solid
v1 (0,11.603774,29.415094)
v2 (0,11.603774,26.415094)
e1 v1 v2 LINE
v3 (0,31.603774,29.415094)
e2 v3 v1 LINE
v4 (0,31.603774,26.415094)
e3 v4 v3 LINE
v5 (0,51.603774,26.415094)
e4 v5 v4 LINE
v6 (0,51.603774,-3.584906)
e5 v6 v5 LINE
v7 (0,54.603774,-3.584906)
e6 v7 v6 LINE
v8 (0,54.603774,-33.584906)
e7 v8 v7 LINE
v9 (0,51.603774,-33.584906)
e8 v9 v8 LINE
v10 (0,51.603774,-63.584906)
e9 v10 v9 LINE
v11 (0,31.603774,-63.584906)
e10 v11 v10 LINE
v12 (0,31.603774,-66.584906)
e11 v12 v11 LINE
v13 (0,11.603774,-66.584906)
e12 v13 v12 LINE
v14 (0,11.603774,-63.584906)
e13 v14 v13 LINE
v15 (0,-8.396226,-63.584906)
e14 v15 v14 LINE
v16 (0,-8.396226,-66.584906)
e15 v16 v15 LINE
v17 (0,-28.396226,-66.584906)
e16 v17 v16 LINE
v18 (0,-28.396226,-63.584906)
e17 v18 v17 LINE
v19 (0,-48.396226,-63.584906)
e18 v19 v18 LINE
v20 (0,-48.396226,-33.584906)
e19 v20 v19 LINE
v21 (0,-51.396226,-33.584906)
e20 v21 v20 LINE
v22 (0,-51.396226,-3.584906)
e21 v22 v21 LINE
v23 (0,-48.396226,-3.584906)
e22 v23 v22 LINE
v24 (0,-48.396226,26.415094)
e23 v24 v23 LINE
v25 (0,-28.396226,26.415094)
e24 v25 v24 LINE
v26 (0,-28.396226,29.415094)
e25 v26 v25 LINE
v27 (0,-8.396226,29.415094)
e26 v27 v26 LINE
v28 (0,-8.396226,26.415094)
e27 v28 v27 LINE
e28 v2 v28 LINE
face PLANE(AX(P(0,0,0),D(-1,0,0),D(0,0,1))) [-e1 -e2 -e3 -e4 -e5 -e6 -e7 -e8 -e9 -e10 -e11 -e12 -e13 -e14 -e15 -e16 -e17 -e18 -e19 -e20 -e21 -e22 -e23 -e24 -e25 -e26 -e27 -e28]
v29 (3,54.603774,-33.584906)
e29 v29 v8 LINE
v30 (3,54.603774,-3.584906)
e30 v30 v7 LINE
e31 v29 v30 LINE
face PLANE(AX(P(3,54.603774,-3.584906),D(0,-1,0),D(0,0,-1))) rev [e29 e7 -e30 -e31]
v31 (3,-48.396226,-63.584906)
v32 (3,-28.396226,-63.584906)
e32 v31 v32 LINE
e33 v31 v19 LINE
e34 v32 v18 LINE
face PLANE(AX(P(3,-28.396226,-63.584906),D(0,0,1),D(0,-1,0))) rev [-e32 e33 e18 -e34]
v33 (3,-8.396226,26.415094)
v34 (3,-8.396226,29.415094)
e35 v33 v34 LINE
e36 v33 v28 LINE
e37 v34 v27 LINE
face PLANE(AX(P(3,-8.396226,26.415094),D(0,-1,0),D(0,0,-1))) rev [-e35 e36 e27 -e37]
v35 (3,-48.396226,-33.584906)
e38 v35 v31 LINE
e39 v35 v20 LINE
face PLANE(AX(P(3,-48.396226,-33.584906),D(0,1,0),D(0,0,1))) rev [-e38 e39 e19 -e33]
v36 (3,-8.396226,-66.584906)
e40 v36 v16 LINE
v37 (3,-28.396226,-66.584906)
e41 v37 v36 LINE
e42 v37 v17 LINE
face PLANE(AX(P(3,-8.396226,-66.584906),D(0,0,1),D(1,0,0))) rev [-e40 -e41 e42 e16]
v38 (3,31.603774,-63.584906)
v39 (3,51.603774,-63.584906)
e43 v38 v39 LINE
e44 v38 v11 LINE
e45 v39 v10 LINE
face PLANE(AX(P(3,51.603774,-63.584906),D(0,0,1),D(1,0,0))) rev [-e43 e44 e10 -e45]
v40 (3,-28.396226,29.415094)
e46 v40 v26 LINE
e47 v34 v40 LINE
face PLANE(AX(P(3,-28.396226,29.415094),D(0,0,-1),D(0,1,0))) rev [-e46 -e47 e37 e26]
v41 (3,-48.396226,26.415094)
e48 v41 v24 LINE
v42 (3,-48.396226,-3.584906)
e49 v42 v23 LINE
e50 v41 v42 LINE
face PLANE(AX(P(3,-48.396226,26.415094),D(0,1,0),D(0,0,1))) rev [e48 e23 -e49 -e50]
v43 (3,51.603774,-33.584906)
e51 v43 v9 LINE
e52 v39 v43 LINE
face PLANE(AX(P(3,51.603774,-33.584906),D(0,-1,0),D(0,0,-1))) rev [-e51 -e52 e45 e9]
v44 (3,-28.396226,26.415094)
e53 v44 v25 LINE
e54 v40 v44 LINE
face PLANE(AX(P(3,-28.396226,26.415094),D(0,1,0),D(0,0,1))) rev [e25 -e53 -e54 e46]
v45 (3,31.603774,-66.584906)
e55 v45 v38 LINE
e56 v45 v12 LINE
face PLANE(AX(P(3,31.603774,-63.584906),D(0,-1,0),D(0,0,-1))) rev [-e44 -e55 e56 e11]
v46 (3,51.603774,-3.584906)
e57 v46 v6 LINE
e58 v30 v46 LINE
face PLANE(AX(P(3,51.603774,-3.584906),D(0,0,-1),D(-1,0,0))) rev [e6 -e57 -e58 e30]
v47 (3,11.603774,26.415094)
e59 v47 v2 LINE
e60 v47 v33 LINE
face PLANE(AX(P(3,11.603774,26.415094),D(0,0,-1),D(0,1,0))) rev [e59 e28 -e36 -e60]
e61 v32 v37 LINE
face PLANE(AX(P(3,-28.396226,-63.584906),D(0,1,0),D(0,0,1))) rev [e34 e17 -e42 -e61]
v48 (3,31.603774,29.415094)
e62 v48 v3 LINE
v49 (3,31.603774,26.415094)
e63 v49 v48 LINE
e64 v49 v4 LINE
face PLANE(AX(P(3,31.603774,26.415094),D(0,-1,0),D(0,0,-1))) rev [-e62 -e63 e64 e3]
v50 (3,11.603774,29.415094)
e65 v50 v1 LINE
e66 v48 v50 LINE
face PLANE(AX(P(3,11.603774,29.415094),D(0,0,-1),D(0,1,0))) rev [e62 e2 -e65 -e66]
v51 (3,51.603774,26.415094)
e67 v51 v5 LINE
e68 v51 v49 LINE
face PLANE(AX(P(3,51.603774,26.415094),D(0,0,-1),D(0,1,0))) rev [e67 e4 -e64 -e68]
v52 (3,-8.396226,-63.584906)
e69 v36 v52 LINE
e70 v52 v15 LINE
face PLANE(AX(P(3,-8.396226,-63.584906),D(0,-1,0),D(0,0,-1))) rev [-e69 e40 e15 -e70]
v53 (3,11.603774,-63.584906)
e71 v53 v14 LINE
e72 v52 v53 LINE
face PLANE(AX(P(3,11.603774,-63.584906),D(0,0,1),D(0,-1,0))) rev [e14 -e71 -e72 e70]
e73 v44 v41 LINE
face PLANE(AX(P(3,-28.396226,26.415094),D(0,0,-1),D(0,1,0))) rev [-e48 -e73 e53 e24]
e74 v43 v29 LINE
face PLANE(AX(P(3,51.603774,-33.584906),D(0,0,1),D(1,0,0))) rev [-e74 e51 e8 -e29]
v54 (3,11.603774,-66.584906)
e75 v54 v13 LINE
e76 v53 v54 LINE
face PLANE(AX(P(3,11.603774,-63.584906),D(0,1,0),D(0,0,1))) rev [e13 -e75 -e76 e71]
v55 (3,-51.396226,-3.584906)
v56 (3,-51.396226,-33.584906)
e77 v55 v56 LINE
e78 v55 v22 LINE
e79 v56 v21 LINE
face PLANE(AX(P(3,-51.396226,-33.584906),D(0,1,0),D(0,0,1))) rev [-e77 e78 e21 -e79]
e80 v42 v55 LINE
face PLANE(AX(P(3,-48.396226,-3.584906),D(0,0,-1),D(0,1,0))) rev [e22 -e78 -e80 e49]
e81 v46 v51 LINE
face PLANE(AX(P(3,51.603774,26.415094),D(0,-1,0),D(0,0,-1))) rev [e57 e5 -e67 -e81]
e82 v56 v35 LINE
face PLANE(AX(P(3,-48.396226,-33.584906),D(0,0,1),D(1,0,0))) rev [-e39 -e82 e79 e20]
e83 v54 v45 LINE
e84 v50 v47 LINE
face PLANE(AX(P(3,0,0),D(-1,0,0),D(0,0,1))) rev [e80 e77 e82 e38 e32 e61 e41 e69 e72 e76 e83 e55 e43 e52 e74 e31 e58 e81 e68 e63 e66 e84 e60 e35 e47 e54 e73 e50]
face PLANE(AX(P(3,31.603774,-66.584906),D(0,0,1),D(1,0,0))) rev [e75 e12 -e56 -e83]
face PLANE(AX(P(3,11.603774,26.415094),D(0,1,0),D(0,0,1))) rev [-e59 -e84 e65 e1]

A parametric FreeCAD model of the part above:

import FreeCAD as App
import Part
import Sketcher


def add_polygon(sketch, points):
    """Adds a closed chain of lines whose ends are joined by coincident constraints."""
    first, n = sketch.GeometryCount, len(points)
    for a, b in zip(points, points[1:] + points[:1]):
        sketch.addGeometry(Part.LineSegment(App.Vector(*a, 0), App.Vector(*b, 0)), False)
    for i in range(n):
        sketch.addConstraint(Sketcher.Constraint("Coincident", first + i, 2, first + (i + 1) % n, 1))

doc = App.newDocument("Part")
body = doc.addObject("PartDesign::Body", "Body")

# Sketch on YZ plane
sketch1 = body.newObject("Sketcher::SketchObject", "Sketch")
sketch1.AttachmentSupport = (doc.getObject("YZ_Plane"), [""])
sketch1.MapMode = "FlatFace"
add_polygon(sketch1, [(51.6, -63.6), (51.6, -33.6), (54.6, -33.6), (54.6, -3.6), (51.6, -3.6), (51.6, 26.4), (31.6, 26.4), (31.6, 29.4), (11.6, 29.4), (11.6, 26.4), (-8.4, 26.4), (-8.4, 29.4), (-28.4, 29.4), (-28.4, 26.4), (-48.4, 26.4), (-48.4, -3.6), (-51.4, -3.6), (-51.4, -33.6), (-48.4, -33.6), (-48.4, -63.6), (-28.4, -63.6), (-28.4, -66.6), (-8.4, -66.6), (-8.4, -63.6), (11.6, -63.6), (11.6, -66.6), (31.6, -66.6), (31.6, -63.6)])  # lines 0-27
sketch1.addConstraint(Sketcher.Constraint("Vertical", 0))
sketch1.addConstraint(Sketcher.Constraint("Horizontal", 1))
sketch1.addConstraint(Sketcher.Constraint("Vertical", 2))
sketch1.addConstraint(Sketcher.Constraint("Horizontal", 3))
sketch1.addConstraint(Sketcher.Constraint("Vertical", 4))
sketch1.addConstraint(Sketcher.Constraint("Horizontal", 5))
sketch1.addConstraint(Sketcher.Constraint("Vertical", 6))
sketch1.addConstraint(Sketcher.Constraint("Horizontal", 7))
sketch1.addConstraint(Sketcher.Constraint("Vertical", 8))
sketch1.addConstraint(Sketcher.Constraint("Horizontal", 9))
sketch1.addConstraint(Sketcher.Constraint("Vertical", 10))
sketch1.addConstraint(Sketcher.Constraint("Horizontal", 11))
sketch1.addConstraint(Sketcher.Constraint("Vertical", 12))
sketch1.addConstraint(Sketcher.Constraint("Horizontal", 13))
sketch1.addConstraint(Sketcher.Constraint("Vertical", 14))
sketch1.addConstraint(Sketcher.Constraint("Horizontal", 15))
sketch1.addConstraint(Sketcher.Constraint("Vertical", 16))
sketch1.addConstraint(Sketcher.Constraint("Horizontal", 17))
sketch1.addConstraint(Sketcher.Constraint("Vertical", 18))
sketch1.addConstraint(Sketcher.Constraint("Horizontal", 19))
sketch1.addConstraint(Sketcher.Constraint("Vertical", 20))
sketch1.addConstraint(Sketcher.Constraint("Horizontal", 21))
sketch1.addConstraint(Sketcher.Constraint("Vertical", 22))
sketch1.addConstraint(Sketcher.Constraint("Horizontal", 23))
sketch1.addConstraint(Sketcher.Constraint("Vertical", 24))
sketch1.addConstraint(Sketcher.Constraint("Horizontal", 25))
sketch1.addConstraint(Sketcher.Constraint("Vertical", 26))
sketch1.addConstraint(Sketcher.Constraint("Horizontal", 27))
sketch1.addConstraint(Sketcher.Constraint("Horizontal", 5, 2, 8, 2))
sketch1.addConstraint(Sketcher.Constraint("Horizontal", 7, 2, 10, 2))
sketch1.addConstraint(Sketcher.Constraint("Horizontal", 9, 2, 12, 2))
sketch1.addConstraint(Sketcher.Constraint("Horizontal", 3, 2, 14, 2))
sketch1.addConstraint(Sketcher.Constraint("Horizontal", 1, 2, 16, 2))
sketch1.addConstraint(Sketcher.Constraint("Horizontal", 19, 2, 22, 2))
sketch1.addConstraint(Sketcher.Constraint("Horizontal", 21, 2, 24, 2))
sketch1.addConstraint(Sketcher.Constraint("Horizontal", 23, 2, 26, 2))
sketch1.addConstraint(Sketcher.Constraint("Vertical", 0, 2, 3, 2))
sketch1.addConstraint(Sketcher.Constraint("Vertical", 14, 2, 17, 2))
sketch1.addConstraint(Sketcher.Constraint("Vertical", 12, 2, 19, 2))
sketch1.addConstraint(Sketcher.Constraint("Vertical", 10, 2, 21, 2))
sketch1.addConstraint(Sketcher.Constraint("Vertical", 8, 2, 23, 2))
sketch1.addConstraint(Sketcher.Constraint("Vertical", 6, 2, 25, 2))
sketch1.addConstraint(Sketcher.Constraint("Equal", 5, 7))
sketch1.addConstraint(Sketcher.Constraint("Equal", 7, 9))
sketch1.addConstraint(Sketcher.Constraint("Equal", 9, 11))
sketch1.addConstraint(Sketcher.Constraint("Equal", 11, 13))
sketch1.addConstraint(Sketcher.Constraint("Equal", 3, 15))
sketch1.addConstraint(Sketcher.Constraint("Equal", 0, 2))
sketch1.addConstraint(Sketcher.Constraint("Equal", 2, 4))
sketch1.addConstraint(Sketcher.Constraint("Equal", 17, 6))
sketch1.addConstraint(Sketcher.Constraint("Equal", 12, 20))
sketch1.addConstraint(Sketcher.Constraint("DistanceX", 1, 1, 1, 2, 3.0))
sketch1.addConstraint(Sketcher.Constraint("DistanceX", 5, 2, 5, 1, 20.0))
sketch1.addConstraint(Sketcher.Constraint("DistanceY", 0, 1, 0, 2, 30.0))
sketch1.addConstraint(Sketcher.Constraint("DistanceX", -1, 1, 0, 2, 51.603774))
sketch1.addConstraint(Sketcher.Constraint("DistanceY", 0, 2, -1, 1, 33.584906))
pad1 = body.newObject("PartDesign::Pad", "Pad")
pad1.Profile = sketch1
pad1.Length = 3

doc.recompute()
